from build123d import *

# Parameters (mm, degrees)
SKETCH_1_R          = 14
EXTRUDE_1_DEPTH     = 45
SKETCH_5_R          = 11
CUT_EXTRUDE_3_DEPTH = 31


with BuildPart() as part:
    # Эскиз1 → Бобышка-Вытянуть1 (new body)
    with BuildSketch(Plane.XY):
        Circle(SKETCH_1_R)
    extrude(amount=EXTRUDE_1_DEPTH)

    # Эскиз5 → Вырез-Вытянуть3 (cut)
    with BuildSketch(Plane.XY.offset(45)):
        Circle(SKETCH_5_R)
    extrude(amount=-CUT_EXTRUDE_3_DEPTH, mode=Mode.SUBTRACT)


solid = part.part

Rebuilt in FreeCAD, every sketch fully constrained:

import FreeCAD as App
import Part
import Sketcher
Q = App.Units.Quantity

doc = App.newDocument("Part")
body = doc.addObject("PartDesign::Body", "Body")

# Sketch on XY plane
sketch1 = body.newObject("Sketcher::SketchObject", "Sketch")
sketch1.AttachmentSupport = (doc.getObject("XY_Plane"), [""])
sketch1.MapMode = "FlatFace"
sketch1.addGeometry(Part.Circle(App.Vector(0, 0, 0), App.Vector(0, 0, 1), 14), False)
sketch1.addConstraint([
    Sketcher.Constraint("Coincident", 0, 3, -1, 1),
    Sketcher.Constraint("Diameter", 0, Q("28 mm")),
])
pad1 = body.newObject("PartDesign::Pad", "Pad")
pad1.Profile = sketch1
pad1.Length = 45

# Sketch on XY plane
sketch2 = body.newObject("Sketcher::SketchObject", "Sketch001")
sketch2.AttachmentSupport = (doc.getObject("XY_Plane"), [""])
sketch2.MapMode = "FlatFace"
sketch2.AttachmentOffset = App.Placement(App.Vector(0, 0, 45), App.Rotation())
sketch2.addGeometry(Part.Circle(App.Vector(0, 0, 0), App.Vector(0, 0, 1), 11), False)
sketch2.addConstraint([
    Sketcher.Constraint("Coincident", 0, 3, -1, 1),
    Sketcher.Constraint("Diameter", 0, Q("22 mm")),
])
pocket1 = body.newObject("PartDesign::Pocket", "Pocket")
pocket1.Profile = sketch2
pocket1.Length = 31

doc.recompute()
